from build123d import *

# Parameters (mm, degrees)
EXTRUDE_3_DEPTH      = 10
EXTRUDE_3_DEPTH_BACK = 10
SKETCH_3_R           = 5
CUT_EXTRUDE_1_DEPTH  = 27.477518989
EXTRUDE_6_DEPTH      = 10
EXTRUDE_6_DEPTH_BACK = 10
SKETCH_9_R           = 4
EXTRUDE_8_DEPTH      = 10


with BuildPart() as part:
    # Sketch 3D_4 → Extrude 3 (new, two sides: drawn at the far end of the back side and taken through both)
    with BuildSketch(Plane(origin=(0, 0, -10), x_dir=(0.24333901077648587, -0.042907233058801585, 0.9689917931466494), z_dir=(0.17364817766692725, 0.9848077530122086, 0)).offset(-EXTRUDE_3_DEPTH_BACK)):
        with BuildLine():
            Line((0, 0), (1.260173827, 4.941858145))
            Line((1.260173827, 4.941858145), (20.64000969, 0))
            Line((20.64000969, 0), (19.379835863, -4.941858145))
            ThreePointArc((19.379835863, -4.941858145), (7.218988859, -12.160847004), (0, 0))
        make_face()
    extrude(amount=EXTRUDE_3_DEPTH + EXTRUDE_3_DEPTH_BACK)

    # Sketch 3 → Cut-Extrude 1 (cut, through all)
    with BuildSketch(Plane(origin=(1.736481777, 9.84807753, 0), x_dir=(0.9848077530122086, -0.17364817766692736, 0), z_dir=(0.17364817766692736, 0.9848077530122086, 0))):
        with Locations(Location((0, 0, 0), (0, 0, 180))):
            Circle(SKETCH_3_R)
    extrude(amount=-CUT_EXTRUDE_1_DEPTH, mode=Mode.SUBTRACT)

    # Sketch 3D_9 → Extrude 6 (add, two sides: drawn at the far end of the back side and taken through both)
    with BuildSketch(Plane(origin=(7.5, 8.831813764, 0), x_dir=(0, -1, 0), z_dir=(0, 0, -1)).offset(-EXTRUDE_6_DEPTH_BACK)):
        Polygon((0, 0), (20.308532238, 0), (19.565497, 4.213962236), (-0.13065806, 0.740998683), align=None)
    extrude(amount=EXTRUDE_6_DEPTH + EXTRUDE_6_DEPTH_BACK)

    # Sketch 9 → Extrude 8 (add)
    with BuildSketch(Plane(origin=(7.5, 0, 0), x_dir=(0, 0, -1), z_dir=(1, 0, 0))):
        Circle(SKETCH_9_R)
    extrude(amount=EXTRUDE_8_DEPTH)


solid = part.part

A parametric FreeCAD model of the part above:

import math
import FreeCAD as App
import Part
import Sketcher
from FreeCAD import Vector
Q = App.Units.Quantity

doc = App.newDocument("Part")
body = doc.addObject("PartDesign::Body", "Body")

sketch1 = body.newObject("Sketcher::SketchObject", "Sketch")
sketch1.Placement = App.Placement(Vector(0, 0, -10), App.Rotation(Vector(0.243339011, -0.042907233, 0.968991793), Vector(0.95427063, -0.168263659, -0.247092907), Vector(0.173648178, 0.984807753, 0), "ZXY"))
sketch1.addGeometry(Part.LineSegment(Vector(1, 5, 0), Vector(0, 0, 0)), False)
sketch1.addGeometry(Part.ArcOfCircle(Part.Circle(Vector(10, -2, 0), Vector(0, 0, 1), 10), math.radians(166), math.radians(346)), False)
sketch1.addGeometry(Part.LineSegment(Vector(19, -5, 0), Vector(21, 0, 0)), False)
sketch1.addGeometry(Part.LineSegment(Vector(21, 0, 0), Vector(1, 5, 0)), False)
sketch1.addConstraint(Sketcher.Constraint("Tangent", 0, 2, 1, 1))
sketch1.addConstraint(Sketcher.Constraint("Tangent", 1, 2, 2, 1))
sketch1.addConstraint(Sketcher.Constraint("Coincident", 2, 2, 3, 1))
sketch1.addConstraint(Sketcher.Constraint("Coincident", 3, 2, 0, 1))
sketch1.addConstraint(Sketcher.Constraint("Coincident", 0, 2, -1, 1))
sketch1.addConstraint(Sketcher.Constraint("PointOnObject", 2, 2, -1))
sketch1.addConstraint(Sketcher.Constraint("Parallel", 0, 2))
sketch1.addConstraint(Sketcher.Constraint("Perpendicular", 2, 3))
sketch1.addConstraint(Sketcher.Constraint("Radius", 1, Q("10 mm")))
sketch1.addConstraint(Sketcher.Constraint("Distance", 0, Q("5.1 mm")))
pad1 = body.newObject("PartDesign::Pad", "Pad")
pad1.Profile = sketch1
pad1.Type = "TwoLengths"
pad1.Length = 10
pad1.Length2 = 10

sketch2 = body.newObject("Sketcher::SketchObject", "Sketch001")
sketch2.Placement = App.Placement(Vector(1.736482, 9.848078, 0), App.Rotation(Vector(0.984807753, -0.173648178, 0), Vector(0, 0, -1), Vector(0.173648178, 0.984807753, 0), "ZXY"))
sketch2.addGeometry(Part.Circle(Vector(0, 0, 0), Vector(0, 0, 1), 5), False)
sketch2.addConstraint(Sketcher.Constraint("Coincident", 0, 3, -1, 1))
sketch2.addConstraint(Sketcher.Constraint("Diameter", 0, Q("10 mm")))
pocket1 = body.newObject("PartDesign::Pocket", "Pocket")
pocket1.Profile = sketch2
pocket1.Type = "ThroughAll"

sketch3 = body.newObject("Sketcher::SketchObject", "Sketch002")
sketch3.AttachmentSupport = (doc.getObject("XY_Plane"), [""])
sketch3.MapMode = "FlatFace"
sketch3.addGeometry(Part.LineSegment(Vector(7.5, 8.8, 0), Vector(7.5, -11.5, 0)), False)
sketch3.addGeometry(Part.LineSegment(Vector(7.5, -11.5, 0), Vector(3.3, -10.7, 0)), False)
sketch3.addGeometry(Part.LineSegment(Vector(3.3, -10.7, 0), Vector(6.8, 9, 0)), False)
sketch3.addGeometry(Part.LineSegment(Vector(6.8, 9, 0), Vector(7.5, 8.8, 0)), False)
sketch3.addConstraint(Sketcher.Constraint("Coincident", 0, 2, 1, 1))
sketch3.addConstraint(Sketcher.Constraint("Coincident", 1, 2, 2, 1))
sketch3.addConstraint(Sketcher.Constraint("Coincident", 2, 2, 3, 1))
sketch3.addConstraint(Sketcher.Constraint("Coincident", 3, 2, 0, 1))
sketch3.addConstraint(Sketcher.Constraint("Vertical", 0))
sketch3.addConstraint(Sketcher.Constraint("Perpendicular", 1, 2))
sketch3.addConstraint(Sketcher.Constraint("Perpendicular", 2, 3))
sketch3.addConstraint(Sketcher.Constraint("Angle", 1, Q("170 deg")))
sketch3.addConstraint(Sketcher.Constraint("Distance", 2, Q("20 mm")))
sketch3.addConstraint(Sketcher.Constraint("DistanceX", -1, 1, 0, 2, Q("7.5 mm")))
sketch3.addConstraint(Sketcher.Constraint("DistanceX", -1, 1, 2, 2, Q("6.759001 mm")))
sketch3.addConstraint(Sketcher.Constraint("DistanceY", 0, 2, -1, 1, Q("11.476718 mm")))
pad2 = body.newObject("PartDesign::Pad", "Pad001")
pad2.Profile = sketch3
pad2.Type = "TwoLengths"
pad2.Length = 10
pad2.Length2 = 10
pad2.Reversed = True

sketch4 = body.newObject("Sketcher::SketchObject", "Sketch003")
sketch4.AttachmentSupport = (doc.getObject("YZ_Plane"), [""])
sketch4.MapMode = "FlatFace"
sketch4.AttachmentOffset = App.Placement(Vector(0, 0, 7.5), App.Rotation())
sketch4.addGeometry(Part.Circle(Vector(0, 0, 0), Vector(0, 0, 1), 4), False)
sketch4.addConstraint(Sketcher.Constraint("Coincident", 0, 3, -1, 1))
sketch4.addConstraint(Sketcher.Constraint("Diameter", 0, Q("8 mm")))
pad3 = body.newObject("PartDesign::Pad", "Pad002")
pad3.Profile = sketch4
pad3.Length = 10

doc.recompute()
